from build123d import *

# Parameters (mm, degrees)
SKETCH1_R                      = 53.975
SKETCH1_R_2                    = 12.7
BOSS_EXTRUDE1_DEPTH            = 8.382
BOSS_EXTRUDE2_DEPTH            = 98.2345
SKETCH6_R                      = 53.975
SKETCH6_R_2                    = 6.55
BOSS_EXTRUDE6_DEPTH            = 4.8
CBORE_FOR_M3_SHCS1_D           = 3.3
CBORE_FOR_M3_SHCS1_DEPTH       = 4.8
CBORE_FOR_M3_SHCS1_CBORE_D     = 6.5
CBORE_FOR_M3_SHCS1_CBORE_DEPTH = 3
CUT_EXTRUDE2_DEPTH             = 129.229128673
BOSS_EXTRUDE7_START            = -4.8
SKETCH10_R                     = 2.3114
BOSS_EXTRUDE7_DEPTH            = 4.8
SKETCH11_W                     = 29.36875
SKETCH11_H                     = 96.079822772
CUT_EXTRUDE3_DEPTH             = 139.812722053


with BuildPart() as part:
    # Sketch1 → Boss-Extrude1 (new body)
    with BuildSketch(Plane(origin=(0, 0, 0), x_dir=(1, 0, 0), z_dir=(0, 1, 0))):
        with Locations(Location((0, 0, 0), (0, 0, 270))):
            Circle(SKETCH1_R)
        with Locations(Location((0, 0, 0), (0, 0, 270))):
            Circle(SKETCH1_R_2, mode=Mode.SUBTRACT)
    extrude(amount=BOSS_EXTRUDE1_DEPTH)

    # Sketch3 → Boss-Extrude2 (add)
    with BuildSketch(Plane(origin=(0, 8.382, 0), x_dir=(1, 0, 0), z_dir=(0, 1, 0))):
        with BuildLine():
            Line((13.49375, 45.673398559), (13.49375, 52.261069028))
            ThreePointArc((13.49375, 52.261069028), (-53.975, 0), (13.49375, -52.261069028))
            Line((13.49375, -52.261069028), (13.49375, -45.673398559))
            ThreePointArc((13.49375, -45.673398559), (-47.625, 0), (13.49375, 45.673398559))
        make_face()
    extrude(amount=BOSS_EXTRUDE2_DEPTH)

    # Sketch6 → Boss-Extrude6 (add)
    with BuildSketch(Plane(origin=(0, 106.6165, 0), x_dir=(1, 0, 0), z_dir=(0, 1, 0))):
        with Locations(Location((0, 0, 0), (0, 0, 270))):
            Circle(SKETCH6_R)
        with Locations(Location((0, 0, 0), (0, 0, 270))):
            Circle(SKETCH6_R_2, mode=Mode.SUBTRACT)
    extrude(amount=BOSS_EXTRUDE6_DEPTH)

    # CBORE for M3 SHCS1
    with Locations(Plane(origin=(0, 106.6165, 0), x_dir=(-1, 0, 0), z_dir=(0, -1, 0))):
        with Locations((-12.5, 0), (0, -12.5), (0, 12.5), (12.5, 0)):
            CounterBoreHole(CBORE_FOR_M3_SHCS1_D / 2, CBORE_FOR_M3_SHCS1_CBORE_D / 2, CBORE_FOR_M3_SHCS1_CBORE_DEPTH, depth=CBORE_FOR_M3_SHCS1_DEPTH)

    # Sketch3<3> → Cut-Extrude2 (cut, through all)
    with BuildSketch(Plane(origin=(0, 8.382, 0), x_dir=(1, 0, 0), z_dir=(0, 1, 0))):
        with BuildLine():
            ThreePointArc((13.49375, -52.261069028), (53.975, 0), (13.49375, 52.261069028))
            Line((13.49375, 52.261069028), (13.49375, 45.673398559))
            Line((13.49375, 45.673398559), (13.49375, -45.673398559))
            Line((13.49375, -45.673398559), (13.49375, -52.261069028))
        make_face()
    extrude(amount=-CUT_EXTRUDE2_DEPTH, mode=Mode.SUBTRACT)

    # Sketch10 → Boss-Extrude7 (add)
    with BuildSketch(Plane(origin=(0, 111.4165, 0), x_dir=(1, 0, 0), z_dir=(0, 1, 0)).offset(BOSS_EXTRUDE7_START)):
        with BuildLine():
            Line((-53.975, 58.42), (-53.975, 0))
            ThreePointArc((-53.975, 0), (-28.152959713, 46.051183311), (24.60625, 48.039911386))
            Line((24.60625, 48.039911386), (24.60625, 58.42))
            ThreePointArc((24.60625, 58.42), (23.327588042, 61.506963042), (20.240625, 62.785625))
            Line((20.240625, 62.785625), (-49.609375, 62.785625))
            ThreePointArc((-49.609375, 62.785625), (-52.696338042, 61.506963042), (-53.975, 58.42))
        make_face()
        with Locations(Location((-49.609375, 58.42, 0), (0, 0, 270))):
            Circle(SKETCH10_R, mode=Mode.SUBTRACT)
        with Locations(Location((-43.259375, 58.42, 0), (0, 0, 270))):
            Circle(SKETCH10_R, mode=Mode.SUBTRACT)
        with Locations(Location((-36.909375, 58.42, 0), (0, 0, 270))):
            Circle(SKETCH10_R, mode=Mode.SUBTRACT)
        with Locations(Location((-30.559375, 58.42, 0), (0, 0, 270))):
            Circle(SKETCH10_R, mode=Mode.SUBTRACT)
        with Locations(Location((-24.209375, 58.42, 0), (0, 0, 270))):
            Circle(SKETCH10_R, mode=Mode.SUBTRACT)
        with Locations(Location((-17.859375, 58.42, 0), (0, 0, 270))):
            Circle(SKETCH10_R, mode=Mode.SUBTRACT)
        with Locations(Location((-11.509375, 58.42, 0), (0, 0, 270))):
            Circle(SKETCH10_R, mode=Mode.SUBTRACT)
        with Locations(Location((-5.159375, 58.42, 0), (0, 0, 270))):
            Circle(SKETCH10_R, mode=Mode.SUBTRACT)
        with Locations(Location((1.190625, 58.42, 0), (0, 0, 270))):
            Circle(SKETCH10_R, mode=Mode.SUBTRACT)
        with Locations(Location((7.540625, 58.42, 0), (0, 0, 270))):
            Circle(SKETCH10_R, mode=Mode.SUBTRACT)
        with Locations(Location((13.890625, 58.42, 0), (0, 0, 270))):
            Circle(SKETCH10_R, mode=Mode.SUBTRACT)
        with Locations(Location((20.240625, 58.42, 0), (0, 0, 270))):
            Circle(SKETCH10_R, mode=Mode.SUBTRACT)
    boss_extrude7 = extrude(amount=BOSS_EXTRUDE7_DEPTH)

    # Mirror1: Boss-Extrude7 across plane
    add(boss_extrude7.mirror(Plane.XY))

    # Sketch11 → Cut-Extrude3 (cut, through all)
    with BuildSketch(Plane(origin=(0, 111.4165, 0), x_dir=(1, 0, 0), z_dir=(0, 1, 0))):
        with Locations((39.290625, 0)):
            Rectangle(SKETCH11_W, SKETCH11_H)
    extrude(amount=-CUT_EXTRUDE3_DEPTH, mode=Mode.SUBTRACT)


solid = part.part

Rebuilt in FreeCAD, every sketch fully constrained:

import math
import FreeCAD as App
import Part
import Sketcher

V = App.Vector
Q = App.Units.Quantity


def add_polygon(sketch, points):
    """Adds a closed chain of lines whose ends are joined by coincident constraints."""
    first, n = sketch.GeometryCount, len(points)
    for a, b in zip(points, points[1:] + points[:1]):
        sketch.addGeometry(Part.LineSegment(App.Vector(*a, 0), App.Vector(*b, 0)), False)
    for i in range(n):
        sketch.addConstraint(Sketcher.Constraint("Coincident", first + i, 2, first + (i + 1) % n, 1))

doc = App.newDocument("Part")
body = doc.addObject("PartDesign::Body", "Body")

# Sketch on XZ plane
sketch1 = body.newObject("Sketcher::SketchObject", "Sketch")
sketch1.AttachmentSupport = (doc.getObject("XZ_Plane"), [""])
sketch1.MapMode = "FlatFace"
sketch1.addGeometry(Part.Circle(V(0, 0, 0), V(0, 0, 1), 53.975), False)
sketch1.addGeometry(Part.Circle(V(0, 0, 0), V(0, 0, 1), 12.7), False)
sketch1.addConstraint(Sketcher.Constraint("Coincident", 0, 3, -1, 1))
sketch1.addConstraint(Sketcher.Constraint("Coincident", 1, 3, -1, 1))
sketch1.addConstraint(Sketcher.Constraint("Diameter", 1, Q("1 in")))
sketch1.addConstraint(Sketcher.Constraint("Diameter", 0, Q("4.25 in")))
pad1 = body.newObject("PartDesign::Pad", "Pad")
pad1.Profile = sketch1
pad1.Length = Q("0.33 in")
pad1.Reversed = True

# Sketch on XZ plane
sketch2 = body.newObject("Sketcher::SketchObject", "Sketch001")
sketch2.AttachmentSupport = (doc.getObject("XZ_Plane"), [""])
sketch2.MapMode = "FlatFace"
sketch2.AttachmentOffset = App.Placement(V(0, 0, -0.33 * 25.4), App.Rotation())
sketch2.addGeometry(Part.LineSegment(V(13.49375, -45.673399, 0), V(13.49375, -52.261069, 0)), False)
sketch2.addGeometry(Part.ArcOfCircle(Part.Circle(V(0, 0, 0), V(0, 0, 1), 53.975), math.radians(75.522488), math.radians(284.477512)), False)
sketch2.addGeometry(Part.LineSegment(V(13.49375, 52.261069, 0), V(13.49375, 45.673399, 0)), False)
sketch2.addGeometry(Part.ArcOfCircle(Part.Circle(V(0, 0, 0), V(0, 0, 1), 47.625), math.radians(73.54075), math.radians(286.45925)), False)
sketch2.addConstraint(Sketcher.Constraint("Coincident", 0, 2, 1, 2))
sketch2.addConstraint(Sketcher.Constraint("Coincident", 1, 1, 2, 1))
sketch2.addConstraint(Sketcher.Constraint("Coincident", 2, 2, 3, 1))
sketch2.addConstraint(Sketcher.Constraint("Coincident", 3, 2, 0, 1))
sketch2.addConstraint(Sketcher.Constraint("Vertical", 0))
sketch2.addConstraint(Sketcher.Constraint("Vertical", 2))
sketch2.addConstraint(Sketcher.Constraint("Coincident", 1, 3, -1, 1))
sketch2.addConstraint(Sketcher.Constraint("Coincident", 3, 3, -1, 1))
sketch2.addConstraint(Sketcher.Constraint("Vertical", 0, 2, 1, 1))
sketch2.addConstraint(Sketcher.Constraint("Radius", 1, Q("2.125 in")))
sketch2.addConstraint(Sketcher.Constraint("Radius", 3, Q("1.875 in")))
sketch2.addConstraint(Sketcher.Constraint("DistanceX", -1, 1, 0, 2, Q("0.53125 in")))
pad2 = body.newObject("PartDesign::Pad", "Pad001")
pad2.Profile = sketch2
pad2.Length = Q("3.8675 in")
pad2.Reversed = True

# Sketch on XZ plane
sketch3 = body.newObject("Sketcher::SketchObject", "Sketch002")
sketch3.AttachmentSupport = (doc.getObject("XZ_Plane"), [""])
sketch3.MapMode = "FlatFace"
sketch3.AttachmentOffset = App.Placement(V(0, 0, -4.1975 * 25.4), App.Rotation())
sketch3.addGeometry(Part.Circle(V(0, 0, 0), V(0, 0, 1), 53.975), False)
sketch3.addGeometry(Part.Circle(V(0, 0, 0), V(0, 0, 1), 6.55), False)
sketch3.addConstraint(Sketcher.Constraint("Coincident", 0, 3, -1, 1))
sketch3.addConstraint(Sketcher.Constraint("Coincident", 1, 3, -1, 1))
sketch3.addConstraint(Sketcher.Constraint("Diameter", 0, Q("4.25 in")))
sketch3.addConstraint(Sketcher.Constraint("Diameter", 1, 13.1))
pad3 = body.newObject("PartDesign::Pad", "Pad002")
pad3.Profile = sketch3
pad3.Length = 4.8
pad3.Reversed = True

# Sketch on XZ plane
sketch4 = body.newObject("Sketcher::SketchObject", "Sketch003")
sketch4.AttachmentSupport = (doc.getObject("XZ_Plane"), [""])
sketch4.MapMode = "FlatFace"
sketch4.AttachmentOffset = App.Placement(V(0, 0, -4.1975 * 25.4), App.Rotation())
sketch4.addGeometry(Part.Circle(V(12.5, 0, 0), V(0, 0, 1), 1.65), False)
sketch4.addGeometry(Part.Circle(V(0, 12.5, 0), V(0, 0, 1), 1.65), False)
sketch4.addGeometry(Part.Circle(V(0, -12.5, 0), V(0, 0, 1), 1.65), False)
sketch4.addGeometry(Part.Circle(V(-12.5, 0, 0), V(0, 0, 1), 1.65), False)
sketch4.addConstraint(Sketcher.Constraint("Equal", 0, 1))
sketch4.addConstraint(Sketcher.Constraint("Equal", 1, 2))
sketch4.addConstraint(Sketcher.Constraint("Equal", 2, 3))
sketch4.addConstraint(Sketcher.Constraint("Symmetric", 1, 3, 2, 3, -1, 1))
sketch4.addConstraint(Sketcher.Constraint("Symmetric", 0, 3, 3, 3, -1, 1))
sketch4.addConstraint(Sketcher.Constraint("PointOnObject", 0, 3, -1))
sketch4.addConstraint(Sketcher.Constraint("PointOnObject", 1, 3, -2))
sketch4.addConstraint(Sketcher.Constraint("Diameter", 0, 3.3))
sketch4.addConstraint(Sketcher.Constraint("DistanceX", -1, 1, 0, 3, 12.5))
sketch4.addConstraint(Sketcher.Constraint("DistanceY", -1, 1, 1, 3, 12.5))
doc.recompute()
hole = body.newObject("PartDesign::Hole", "Hole")
hole.Profile = sketch4
hole.ThreadType = "None"
hole.Diameter = 3.3
hole.DepthType = "Dimension"
hole.Depth = 4.8
hole.DrillPoint = "Flat"
hole.HoleCutType = "Counterbore"
hole.HoleCutDiameter = 6.5
hole.HoleCutDepth = 3

# Sketch on XZ plane
sketch5 = body.newObject("Sketcher::SketchObject", "Sketch004")
sketch5.AttachmentSupport = (doc.getObject("XZ_Plane"), [""])
sketch5.MapMode = "FlatFace"
sketch5.AttachmentOffset = App.Placement(V(0, 0, -0.33 * 25.4), App.Rotation())
sketch5.addGeometry(Part.ArcOfCircle(Part.Circle(V(0, 0, 0), V(0, 0, 1), 53.975), math.radians(-75.522488), math.radians(75.522488)), False)
sketch5.addGeometry(Part.LineSegment(V(13.49375, -52.261069, 0), V(13.49375, 52.261069, 0)), False)
sketch5.addConstraint(Sketcher.Constraint("Coincident", 0, 1, 1, 1))
sketch5.addConstraint(Sketcher.Constraint("Coincident", 1, 2, 0, 2))
sketch5.addConstraint(Sketcher.Constraint("Vertical", 1))
sketch5.addConstraint(Sketcher.Constraint("Coincident", 0, 3, -1, 1))
sketch5.addConstraint(Sketcher.Constraint("Radius", 0, Q("2.125 in")))
sketch5.addConstraint(Sketcher.Constraint("DistanceX", -1, 1, 0, 1, Q("0.53125 in")))
pocket1 = body.newObject("PartDesign::Pocket", "Pocket")
pocket1.Profile = sketch5
pocket1.Type = "ThroughAll"
pocket1.Reversed = True

# Sketch on XZ plane
sketch6 = body.newObject("Sketcher::SketchObject", "Sketch005")
sketch6.AttachmentSupport = (doc.getObject("XZ_Plane"), [""])
sketch6.MapMode = "FlatFace"
sketch6.AttachmentOffset = App.Placement(V(0, 0, -4.1975 * 25.4), App.Rotation())
sketch6.addGeometry(Part.LineSegment(V(-53.975, -58.42, 0), V(-53.975, 0, 0)), False)
sketch6.addGeometry(Part.ArcOfCircle(Part.Circle(V(0, 0, 0), V(0, 0, 1), 53.975), math.radians(-180), math.radians(-62.878279)), False)
sketch6.addGeometry(Part.LineSegment(V(24.60625, -48.039911, 0), V(24.60625, -58.42, 0)), False)
sketch6.addGeometry(Part.ArcOfCircle(Part.Circle(V(20.240625, -58.42, 0), V(0, 0, 1), 4.365625), math.radians(-90), math.radians(0)), False)
sketch6.addGeometry(Part.LineSegment(V(20.240625, -62.785625, 0), V(-49.609375, -62.785625, 0)), False)
sketch6.addGeometry(Part.ArcOfCircle(Part.Circle(V(-49.609375, -58.42, 0), V(0, 0, 1), 4.365625), math.radians(180), math.radians(270)), False)
sketch6.addGeometry(Part.Circle(V(-49.609375, -58.42, 0), V(0, 0, 1), 2.3114), False)
sketch6.addGeometry(Part.Circle(V(-43.259375, -58.42, 0), V(0, 0, 1), 2.3114), False)
sketch6.addGeometry(Part.Circle(V(-36.909375, -58.42, 0), V(0, 0, 1), 2.3114), False)
sketch6.addGeometry(Part.Circle(V(-30.559375, -58.42, 0), V(0, 0, 1), 2.3114), False)
sketch6.addGeometry(Part.Circle(V(-24.209375, -58.42, 0), V(0, 0, 1), 2.3114), False)
sketch6.addGeometry(Part.Circle(V(-17.859375, -58.42, 0), V(0, 0, 1), 2.3114), False)
sketch6.addGeometry(Part.Circle(V(-11.509375, -58.42, 0), V(0, 0, 1), 2.3114), False)
sketch6.addGeometry(Part.Circle(V(-5.159375, -58.42, 0), V(0, 0, 1), 2.3114), False)
sketch6.addGeometry(Part.Circle(V(1.190625, -58.42, 0), V(0, 0, 1), 2.3114), False)
sketch6.addGeometry(Part.Circle(V(7.540625, -58.42, 0), V(0, 0, 1), 2.3114), False)
sketch6.addGeometry(Part.Circle(V(13.890625, -58.42, 0), V(0, 0, 1), 2.3114), False)
sketch6.addGeometry(Part.Circle(V(20.240625, -58.42, 0), V(0, 0, 1), 2.3114), False)
sketch6.addConstraint(Sketcher.Constraint("Tangent", 0, 2, 1, 1))
sketch6.addConstraint(Sketcher.Constraint("Coincident", 1, 2, 2, 1))
sketch6.addConstraint(Sketcher.Constraint("Tangent", 2, 2, 3, 2))
sketch6.addConstraint(Sketcher.Constraint("Tangent", 3, 1, 4, 1))
sketch6.addConstraint(Sketcher.Constraint("Tangent", 4, 2, 5, 2))
sketch6.addConstraint(Sketcher.Constraint("Tangent", 5, 1, 0, 1))
sketch6.addConstraint(Sketcher.Constraint("Vertical", 0))
sketch6.addConstraint(Sketcher.Constraint("Vertical", 2))
sketch6.addConstraint(Sketcher.Constraint("Horizontal", 4))
sketch6.addConstraint(Sketcher.Constraint("Coincident", 1, 3, -1, 1))
sketch6.addConstraint(Sketcher.Constraint("Coincident", 6, 3, 5, 3))
sketch6.addConstraint(Sketcher.Constraint("Coincident", 17, 3, 3, 3))
sketch6.addConstraint(Sketcher.Constraint("Equal", 3, 5))
sketch6.addConstraint(Sketcher.Constraint("Equal", 6, 7))
sketch6.addConstraint(Sketcher.Constraint("Equal", 7, 8))
sketch6.addConstraint(Sketcher.Constraint("Equal", 8, 9))
sketch6.addConstraint(Sketcher.Constraint("Equal", 9, 10))
sketch6.addConstraint(Sketcher.Constraint("Equal", 10, 11))
sketch6.addConstraint(Sketcher.Constraint("Equal", 11, 12))
sketch6.addConstraint(Sketcher.Constraint("Equal", 12, 13))
sketch6.addConstraint(Sketcher.Constraint("Equal", 13, 14))
sketch6.addConstraint(Sketcher.Constraint("Equal", 14, 15))
sketch6.addConstraint(Sketcher.Constraint("Equal", 15, 16))
sketch6.addConstraint(Sketcher.Constraint("Equal", 16, 17))
sketch6.addConstraint(Sketcher.Constraint("Horizontal", 6, 3, 7, 3))
sketch6.addConstraint(Sketcher.Constraint("Horizontal", 7, 3, 8, 3))
sketch6.addConstraint(Sketcher.Constraint("Horizontal", 8, 3, 9, 3))
sketch6.addConstraint(Sketcher.Constraint("Horizontal", 9, 3, 10, 3))
sketch6.addConstraint(Sketcher.Constraint("Horizontal", 10, 3, 11, 3))
sketch6.addConstraint(Sketcher.Constraint("Horizontal", 11, 3, 12, 3))
sketch6.addConstraint(Sketcher.Constraint("Horizontal", 12, 3, 13, 3))
sketch6.addConstraint(Sketcher.Constraint("Horizontal", 13, 3, 14, 3))
sketch6.addConstraint(Sketcher.Constraint("Horizontal", 14, 3, 15, 3))
sketch6.addConstraint(Sketcher.Constraint("Horizontal", 15, 3, 16, 3))
sketch6.addConstraint(Sketcher.Constraint("Diameter", 6, Q("0.182 in")))
sketch6.addConstraint(Sketcher.Constraint("DistanceY", 0, 1, 0, 2, Q("2.3 in")))
sketch6.addConstraint(Sketcher.Constraint("Radius", 1, Q("2.125 in")))
sketch6.addConstraint(Sketcher.Constraint("Radius", 3, Q("0.171875 in")))
sketch6.addConstraint(Sketcher.Constraint("DistanceX", 9, 3, 3, 3, Q("2 in")))
sketch6.addConstraint(Sketcher.Constraint("DistanceX", 6, 3, 10, 3, Q("1 in")))
sketch6.addConstraint(Sketcher.Constraint("DistanceX", 7, 3, 11, 3, Q("1 in")))
sketch6.addConstraint(Sketcher.Constraint("DistanceX", 8, 3, 12, 3, Q("1 in")))
sketch6.addConstraint(Sketcher.Constraint("DistanceX", 9, 3, 13, 3, Q("1 in")))
sketch6.addConstraint(Sketcher.Constraint("DistanceX", 10, 3, 14, 3, Q("1 in")))
sketch6.addConstraint(Sketcher.Constraint("DistanceX", 11, 3, 15, 3, Q("1 in")))
sketch6.addConstraint(Sketcher.Constraint("DistanceX", 12, 3, 16, 3, Q("1 in")))
sketch6.addConstraint(Sketcher.Constraint("DistanceX", 4, 2, 4, 1, Q("2.75 in")))
sketch6.addConstraint(Sketcher.Constraint("DistanceX", 7, 3, 3, 3, Q("2.5 in")))
sketch6.addConstraint(Sketcher.Constraint("DistanceX", 6, 3, 8, 3, Q("0.5 in")))
pad4 = body.newObject("PartDesign::Pad", "Pad003")
pad4.Profile = sketch6
pad4.Length = 4.8
pad4.Reversed = True
doc.recompute()

mirrored = body.newObject("PartDesign::Mirrored", "Mirrored")
mirrored.Originals = [pad4]
mirrored.MirrorPlane = (doc.getObject("XY_Plane"), [""])
body.Tip = mirrored

# Sketch on XZ plane
sketch7 = body.newObject("Sketcher::SketchObject", "Sketch006")
sketch7.AttachmentSupport = (doc.getObject("XZ_Plane"), [""])
sketch7.MapMode = "FlatFace"
sketch7.AttachmentOffset = App.Placement(V(0, 0, -111.4165), App.Rotation())
add_polygon(sketch7, [(24.60625, -48.039911), (24.60625, 48.039911), (53.975, 48.039911), (53.975, -48.039911)])  # lines 0-3
sketch7.addConstraint(Sketcher.Constraint("Vertical", 0))
sketch7.addConstraint(Sketcher.Constraint("Horizontal", 1))
sketch7.addConstraint(Sketcher.Constraint("Vertical", 2))
sketch7.addConstraint(Sketcher.Constraint("Horizontal", 3))
sketch7.addConstraint(Sketcher.Constraint("DistanceX", 1, 1, 1, 2, Q("1.15625 in")))
sketch7.addConstraint(Sketcher.Constraint("DistanceX", -1, 1, 0, 2, Q("0.96875 in")))
sketch7.addConstraint(Sketcher.Constraint("DistanceY", 0, 1, 0, 2, 96.079823))
sketch7.addConstraint(Sketcher.Constraint("DistanceY", -1, 1, 0, 2, 48.039911))
pocket2 = body.newObject("PartDesign::Pocket", "Pocket001")
pocket2.Profile = sketch7
pocket2.Type = "ThroughAll"
pocket2.Reversed = True

doc.recompute()
